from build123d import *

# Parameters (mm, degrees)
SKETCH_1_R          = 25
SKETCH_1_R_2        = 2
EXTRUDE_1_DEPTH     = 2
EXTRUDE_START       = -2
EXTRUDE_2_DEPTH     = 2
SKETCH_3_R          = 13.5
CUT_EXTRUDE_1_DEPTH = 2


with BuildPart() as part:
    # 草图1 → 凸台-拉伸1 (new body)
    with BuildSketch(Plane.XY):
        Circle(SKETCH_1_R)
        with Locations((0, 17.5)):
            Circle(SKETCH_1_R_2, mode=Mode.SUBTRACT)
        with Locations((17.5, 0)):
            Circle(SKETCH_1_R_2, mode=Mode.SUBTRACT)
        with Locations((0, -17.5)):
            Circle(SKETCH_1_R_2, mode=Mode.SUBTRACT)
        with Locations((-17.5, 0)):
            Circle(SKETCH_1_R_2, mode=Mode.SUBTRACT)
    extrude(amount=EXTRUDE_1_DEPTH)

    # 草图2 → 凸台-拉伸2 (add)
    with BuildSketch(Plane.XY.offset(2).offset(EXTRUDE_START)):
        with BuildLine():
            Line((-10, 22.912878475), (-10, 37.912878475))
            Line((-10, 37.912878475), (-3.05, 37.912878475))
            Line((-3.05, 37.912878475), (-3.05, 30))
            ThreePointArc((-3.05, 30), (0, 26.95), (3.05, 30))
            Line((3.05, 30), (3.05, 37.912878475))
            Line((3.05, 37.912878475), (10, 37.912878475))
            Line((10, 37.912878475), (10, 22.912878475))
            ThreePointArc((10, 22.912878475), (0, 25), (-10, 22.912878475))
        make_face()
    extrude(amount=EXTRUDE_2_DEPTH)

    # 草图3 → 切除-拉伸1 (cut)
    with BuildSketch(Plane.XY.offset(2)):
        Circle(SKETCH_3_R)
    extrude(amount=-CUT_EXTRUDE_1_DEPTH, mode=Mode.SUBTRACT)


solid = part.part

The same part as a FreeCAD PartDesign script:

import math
import FreeCAD as App
import Part
import Sketcher

V = App.Vector
Q = App.Units.Quantity

doc = App.newDocument("Part")
params = doc.addObject("Spreadsheet::Sheet", "Params")
for row, (alias, value) in enumerate([
    ("sketch1_diameter", "50 mm"),
    ("sketch1_diameter2", "4 mm"),
    ("pad1_length", "2 mm"),
    ("sketch2_radius", "25 mm"),
    ("sketch2_height", "15 mm"),
    ("sketch2_radius2", "3.05 mm"),
    ("pad2_length", "2 mm"),
    ("sketch3_diameter", "27 mm"),
    ("pocket1_length", "2 mm"),
], start=1):
    params.set(f"A{row}", alias)
    params.set(f"B{row}", "=" + value)
    params.setAlias(f"B{row}", alias)

body = doc.addObject("PartDesign::Body", "Body")

sketch1 = body.newObject("Sketcher::SketchObject", "Sketch")
sketch1.AttachmentSupport = (doc.getObject("XY_Plane"), [""])
sketch1.MapMode = "FlatFace"
sketch1.addGeometry([
    Part.Circle(V(0, 0, 0), V(0, 0, 1), 25),
    Part.Circle(V(0, -17.5, 0), V(0, 0, 1), 2),
    Part.Circle(V(-17.5, 0, 0), V(0, 0, 1), 2),
    Part.Circle(V(17.5, 0, 0), V(0, 0, 1), 2),
    Part.Circle(V(0, 17.5, 0), V(0, 0, 1), 2),
], False)
sketch1.addConstraint([
    Sketcher.Constraint("Coincident", 0, 3, -1, 1),
    Sketcher.Constraint("Equal", 1, 2),
    Sketcher.Constraint("Equal", 2, 3),
    Sketcher.Constraint("Equal", 3, 4),
    Sketcher.Constraint("Symmetric", 2, 3, 3, 3, -1, 1),
    Sketcher.Constraint("Symmetric", 1, 3, 4, 3, -1, 1),
    Sketcher.Constraint("PointOnObject", 1, 3, -2),
    Sketcher.Constraint("PointOnObject", 2, 3, -1),
    Sketcher.Constraint("Diameter", 0, Q("50 mm")),
    Sketcher.Constraint("Diameter", 1, Q("4 mm")),
    Sketcher.Constraint("DistanceX", 2, 3, 3, 3, Q("35 mm")),
    Sketcher.Constraint("DistanceY", 1, 3, 4, 3, Q("35 mm")),
])
sketch1.setExpression("Constraints[8]", "Params.sketch1_diameter")
sketch1.setExpression("Constraints[9]", "Params.sketch1_diameter2")
pad1 = body.newObject("PartDesign::Pad", "Pad")
pad1.Profile = sketch1
pad1.setExpression("Length", "Params.pad1_length")

sketch2 = body.newObject("Sketcher::SketchObject", "Sketch001")
sketch2.AttachmentSupport = (doc.getObject("XY_Plane"), [""])
sketch2.MapMode = "FlatFace"
sketch2.addGeometry([
    Part.LineSegment(V(-10, 37.9, 0), V(-10, 22.9, 0)),
    Part.ArcOfCircle(Part.Circle(V(0, 0, 0), V(0, 0, 1), 25), math.radians(66), math.radians(114)),
    Part.LineSegment(V(10, 22.9, 0), V(10, 37.9, 0)),
    Part.LineSegment(V(10, 37.9, 0), V(3, 37.9, 0)),
    Part.LineSegment(V(3, 37.9, 0), V(3, 30, 0)),
    Part.ArcOfCircle(Part.Circle(V(0, 30, 0), V(0, 0, 1), 3), math.radians(180), math.radians(360)),
    Part.LineSegment(V(-3, 30, 0), V(-3, 37.9, 0)),
    Part.LineSegment(V(-3, 37.9, 0), V(-10, 37.9, 0)),
], False)
sketch2.addConstraint([
    Sketcher.Constraint("Coincident", 0, 2, 1, 2),
    Sketcher.Constraint("Coincident", 1, 1, 2, 1),
    Sketcher.Constraint("Coincident", 2, 2, 3, 1),
    Sketcher.Constraint("Coincident", 3, 2, 4, 1),
    Sketcher.Constraint("Tangent", 4, 2, 5, 2),
    Sketcher.Constraint("Tangent", 5, 1, 6, 1),
    Sketcher.Constraint("Coincident", 6, 2, 7, 1),
    Sketcher.Constraint("Coincident", 7, 2, 0, 1),
    Sketcher.Constraint("Vertical", 0),
    Sketcher.Constraint("Vertical", 2),
    Sketcher.Constraint("Horizontal", 3),
    Sketcher.Constraint("Vertical", 4),
    Sketcher.Constraint("Vertical", 6),
    Sketcher.Constraint("Horizontal", 7),
    Sketcher.Constraint("Coincident", 1, 3, -1, 1),
    Sketcher.Constraint("Symmetric", 3, 2, 6, 2, -2),
    Sketcher.Constraint("Horizontal", 0, 2, 1, 1),
    Sketcher.Constraint("Radius", 1, Q("25 mm")),
    Sketcher.Constraint("DistanceY", 0, 2, 0, 1, Q("15 mm")),
    Sketcher.Constraint("Radius", 5, Q("3.05 mm")),
    Sketcher.Constraint("DistanceY", -1, 1, 5, 3, Q("30 mm")),
    Sketcher.Constraint("DistanceX", 0, 2, -1, 1, Q("10 mm")),
])
sketch2.setExpression("Constraints[17]", "Params.sketch2_radius")
sketch2.setExpression("Constraints[18]", "Params.sketch2_height")
sketch2.setExpression("Constraints[19]", "Params.sketch2_radius2")
pad2 = body.newObject("PartDesign::Pad", "Pad001")
pad2.Profile = sketch2
pad2.setExpression("Length", "Params.pad2_length")

sketch3 = body.newObject("Sketcher::SketchObject", "Sketch002")
sketch3.AttachmentSupport = (doc.getObject("XY_Plane"), [""])
sketch3.MapMode = "FlatFace"
sketch3.AttachmentOffset = App.Placement(V(0, 0, 2), App.Rotation())
sketch3.addGeometry(Part.Circle(V(0, 0, 0), V(0, 0, 1), 14), False)
sketch3.addConstraint([
    Sketcher.Constraint("Coincident", 0, 3, -1, 1),
    Sketcher.Constraint("Diameter", 0, Q("27 mm")),
])
sketch3.setExpression("Constraints[1]", "Params.sketch3_diameter")
pocket1 = body.newObject("PartDesign::Pocket", "Pocket")
pocket1.Profile = sketch3
pocket1.setExpression("Length", "Params.pocket1_length")

doc.recompute()
